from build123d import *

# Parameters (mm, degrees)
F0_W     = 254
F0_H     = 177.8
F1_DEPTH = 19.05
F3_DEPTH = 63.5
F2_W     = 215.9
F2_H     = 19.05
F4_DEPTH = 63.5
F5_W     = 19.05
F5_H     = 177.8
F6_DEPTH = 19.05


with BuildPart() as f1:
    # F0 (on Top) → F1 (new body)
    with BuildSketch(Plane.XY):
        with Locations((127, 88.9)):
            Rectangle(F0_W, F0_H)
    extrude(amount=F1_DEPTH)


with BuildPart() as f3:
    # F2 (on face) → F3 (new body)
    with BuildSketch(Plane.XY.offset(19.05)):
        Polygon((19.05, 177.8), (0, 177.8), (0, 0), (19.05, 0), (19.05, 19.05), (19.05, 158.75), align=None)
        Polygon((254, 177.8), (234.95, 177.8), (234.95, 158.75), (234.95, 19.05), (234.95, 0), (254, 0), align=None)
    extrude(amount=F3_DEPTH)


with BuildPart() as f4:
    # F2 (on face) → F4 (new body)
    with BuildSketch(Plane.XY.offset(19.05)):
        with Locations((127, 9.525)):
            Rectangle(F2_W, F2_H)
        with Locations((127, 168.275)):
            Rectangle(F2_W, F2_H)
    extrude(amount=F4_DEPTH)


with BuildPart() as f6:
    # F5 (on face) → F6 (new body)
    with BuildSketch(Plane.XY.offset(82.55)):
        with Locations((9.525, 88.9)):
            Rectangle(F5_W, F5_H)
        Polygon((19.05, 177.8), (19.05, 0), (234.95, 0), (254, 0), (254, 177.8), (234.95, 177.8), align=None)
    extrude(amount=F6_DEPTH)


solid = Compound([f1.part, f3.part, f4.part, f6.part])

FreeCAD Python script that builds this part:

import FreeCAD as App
import Part
import Sketcher
from FreeCAD import Vector
Q = App.Units.Quantity

doc = App.newDocument("Part")
params = doc.addObject("Spreadsheet::Sheet", "Params")
for row, (alias, value) in enumerate([
    ("sketch1_width", "10 in"),
    ("sketch1_height", "7 in"),
    ("pad1_length", "0.75 in"),
    ("sketch2_height", "7 in"),
    ("sketch2_width", "0.75 in"),
    ("pad2_length", "2.5 in"),
    ("sketch3_width", "8.5 in"),
    ("sketch3_height", "0.75 in"),
    ("pad3_length", "2.5 in"),
    ("sketch4_width", "10 in"),
    ("sketch4_height", "7 in"),
    ("pad4_length", "0.75 in"),
], start=1):
    params.set(f"A{row}", alias)
    params.set(f"B{row}", "=" + value)
    params.setAlias(f"B{row}", alias)

body = doc.addObject("PartDesign::Body", "Body")

# Sketch on XY plane
sketch1 = body.newObject("Sketcher::SketchObject", "Sketch")
sketch1.AttachmentSupport = (doc.getObject("XY_Plane"), [""])
sketch1.MapMode = "FlatFace"
sketch1.addGeometry([
    Part.LineSegment(Vector(0, 177.8, 0), Vector(0, 0, 0)),
    Part.LineSegment(Vector(0, 0, 0), Vector(254, 0, 0)),
    Part.LineSegment(Vector(254, 0, 0), Vector(254, 177.8, 0)),
    Part.LineSegment(Vector(254, 177.8, 0), Vector(0, 177.8, 0)),
], False)
sketch1.addConstraint([
    Sketcher.Constraint("Coincident", 0, 2, 1, 1),
    Sketcher.Constraint("Coincident", 1, 2, 2, 1),
    Sketcher.Constraint("Coincident", 2, 2, 3, 1),
    Sketcher.Constraint("Coincident", 3, 2, 0, 1),
    Sketcher.Constraint("Vertical", 0),
    Sketcher.Constraint("Horizontal", 1),
    Sketcher.Constraint("Vertical", 2),
    Sketcher.Constraint("Horizontal", 3),
    Sketcher.Constraint("Coincident", 0, 2, -1, 1),
    Sketcher.Constraint("DistanceX", 1, 1, 1, 2, Q("10 in")),
    Sketcher.Constraint("DistanceY", 0, 2, 0, 1, Q("7 in")),
])
sketch1.setExpression("Constraints[9]", "Params.sketch1_width")
sketch1.setExpression("Constraints[10]", "Params.sketch1_height")
pad1 = body.newObject("PartDesign::Pad", "Pad")
pad1.Profile = sketch1
pad1.setExpression("Length", "Params.pad1_length")
body2 = doc.addObject("PartDesign::Body", "Body001")
body2.AllowCompound = True

# Sketch on XY plane
sketch2 = body2.newObject("Sketcher::SketchObject", "Sketch001")
sketch2.AttachmentSupport = (doc.getObject("XY_Plane001"), [""])
sketch2.MapMode = "FlatFace"
sketch2.AttachmentOffset = App.Placement(Vector(0, 0, 0.75 * 25.4), App.Rotation())
sketch2.addGeometry([
    Part.LineSegment(Vector(19.05, 177.8, 0), Vector(0, 177.8, 0)),  # 0
    Part.LineSegment(Vector(0, 177.8, 0), Vector(0, 0, 0)),  # 1
    Part.LineSegment(Vector(0, 0, 0), Vector(19.05, 0, 0)),  # 2
    Part.LineSegment(Vector(19.05, 0, 0), Vector(19.05, 177.8, 0)),  # 3
    Part.LineSegment(Vector(254, 177.8, 0), Vector(234.95, 177.8, 0)),  # 4
    Part.LineSegment(Vector(234.95, 177.8, 0), Vector(234.95, 0, 0)),  # 5
    Part.LineSegment(Vector(234.95, 0, 0), Vector(254, 0, 0)),  # 6
    Part.LineSegment(Vector(254, 0, 0), Vector(254, 177.8, 0)),  # 7
], False)
sketch2.addConstraint([
    Sketcher.Constraint("Coincident", 0, 2, 1, 1),
    Sketcher.Constraint("Coincident", 1, 2, 2, 1),
    Sketcher.Constraint("Coincident", 2, 2, 3, 1),
    Sketcher.Constraint("Coincident", 3, 2, 0, 1),
    Sketcher.Constraint("Coincident", 4, 2, 5, 1),
    Sketcher.Constraint("Coincident", 5, 2, 6, 1),
    Sketcher.Constraint("Coincident", 6, 2, 7, 1),
    Sketcher.Constraint("Coincident", 7, 2, 4, 1),
    Sketcher.Constraint("Horizontal", 0),
    Sketcher.Constraint("Vertical", 1),
    Sketcher.Constraint("Horizontal", 2),
    Sketcher.Constraint("Vertical", 3),
    Sketcher.Constraint("Horizontal", 4),
    Sketcher.Constraint("Vertical", 5),
    Sketcher.Constraint("Horizontal", 6),
    Sketcher.Constraint("Vertical", 7),
    Sketcher.Constraint("Coincident", 1, 2, -1, 1),
    Sketcher.Constraint("PointOnObject", 5, 2, -1),
    Sketcher.Constraint("Horizontal", 3, 2, 4, 2),
    Sketcher.Constraint("Equal", 2, 4),
    Sketcher.Constraint("DistanceY", 1, 2, 1, 1, Q("7 in")),
    Sketcher.Constraint("DistanceX", -1, 1, 6, 2, Q("10 in")),
    Sketcher.Constraint("DistanceX", 0, 2, 0, 1, Q("0.75 in")),
])
sketch2.setExpression("Constraints[20]", "Params.sketch2_height")
sketch2.setExpression("Constraints[22]", "Params.sketch2_width")
pad2 = body2.newObject("PartDesign::Pad", "Pad001")
pad2.Profile = sketch2
pad2.setExpression("Length", "Params.pad2_length")
body3 = doc.addObject("PartDesign::Body", "Body002")
body3.AllowCompound = True

# Sketch on XY plane
sketch3 = body3.newObject("Sketcher::SketchObject", "Sketch002")
sketch3.AttachmentSupport = (doc.getObject("XY_Plane002"), [""])
sketch3.MapMode = "FlatFace"
sketch3.AttachmentOffset = App.Placement(Vector(0, 0, 0.75 * 25.4), App.Rotation())
sketch3.addGeometry([
    Part.LineSegment(Vector(19.05, 19.05, 0), Vector(19.05, 0, 0)),  # 0
    Part.LineSegment(Vector(19.05, 0, 0), Vector(234.95, 0, 0)),  # 1
    Part.LineSegment(Vector(234.95, 0, 0), Vector(234.95, 19.05, 0)),  # 2
    Part.LineSegment(Vector(234.95, 19.05, 0), Vector(19.05, 19.05, 0)),  # 3
    Part.LineSegment(Vector(19.05, 177.8, 0), Vector(19.05, 158.75, 0)),  # 4
    Part.LineSegment(Vector(19.05, 158.75, 0), Vector(234.95, 158.75, 0)),  # 5
    Part.LineSegment(Vector(234.95, 158.75, 0), Vector(234.95, 177.8, 0)),  # 6
    Part.LineSegment(Vector(234.95, 177.8, 0), Vector(19.05, 177.8, 0)),  # 7
], False)
sketch3.addConstraint([
    Sketcher.Constraint("Coincident", 0, 2, 1, 1),
    Sketcher.Constraint("Coincident", 1, 2, 2, 1),
    Sketcher.Constraint("Coincident", 2, 2, 3, 1),
    Sketcher.Constraint("Coincident", 3, 2, 0, 1),
    Sketcher.Constraint("Coincident", 4, 2, 5, 1),
    Sketcher.Constraint("Coincident", 5, 2, 6, 1),
    Sketcher.Constraint("Coincident", 6, 2, 7, 1),
    Sketcher.Constraint("Coincident", 7, 2, 4, 1),
    Sketcher.Constraint("Vertical", 0),
    Sketcher.Constraint("Horizontal", 1),
    Sketcher.Constraint("Vertical", 2),
    Sketcher.Constraint("Horizontal", 3),
    Sketcher.Constraint("Vertical", 4),
    Sketcher.Constraint("Horizontal", 5),
    Sketcher.Constraint("Vertical", 6),
    Sketcher.Constraint("Horizontal", 7),
    Sketcher.Constraint("PointOnObject", 0, 2, -1),
    Sketcher.Constraint("Vertical", 3, 2, 4, 2),
    Sketcher.Constraint("Vertical", 2, 2, 5, 2),
    Sketcher.Constraint("Equal", 2, 4),
    Sketcher.Constraint("DistanceX", 1, 1, 1, 2, Q("8.5 in")),
    Sketcher.Constraint("DistanceY", -1, 1, 6, 2, Q("7 in")),
    Sketcher.Constraint("DistanceY", 0, 2, 0, 1, Q("0.75 in")),
    Sketcher.Constraint("DistanceX", -1, 1, 0, 2, Q("0.75 in")),
])
sketch3.setExpression("Constraints[20]", "Params.sketch3_width")
sketch3.setExpression("Constraints[22]", "Params.sketch3_height")
pad3 = body3.newObject("PartDesign::Pad", "Pad002")
pad3.Profile = sketch3
pad3.setExpression("Length", "Params.pad3_length")
body4 = doc.addObject("PartDesign::Body", "Body003")

# Sketch on XY plane
sketch4 = body4.newObject("Sketcher::SketchObject", "Sketch003")
sketch4.AttachmentSupport = (doc.getObject("XY_Plane003"), [""])
sketch4.MapMode = "FlatFace"
sketch4.AttachmentOffset = App.Placement(Vector(0, 0, 3.25 * 25.4), App.Rotation())
sketch4.addGeometry([
    Part.LineSegment(Vector(0, 177.8, 0), Vector(0, 0, 0)),
    Part.LineSegment(Vector(0, 0, 0), Vector(254, 0, 0)),
    Part.LineSegment(Vector(254, 0, 0), Vector(254, 177.8, 0)),
    Part.LineSegment(Vector(254, 177.8, 0), Vector(0, 177.8, 0)),
], False)
sketch4.addConstraint([
    Sketcher.Constraint("Coincident", 0, 2, 1, 1),
    Sketcher.Constraint("Coincident", 1, 2, 2, 1),
    Sketcher.Constraint("Coincident", 2, 2, 3, 1),
    Sketcher.Constraint("Coincident", 3, 2, 0, 1),
    Sketcher.Constraint("Vertical", 0),
    Sketcher.Constraint("Horizontal", 1),
    Sketcher.Constraint("Vertical", 2),
    Sketcher.Constraint("Horizontal", 3),
    Sketcher.Constraint("Coincident", 0, 2, -1, 1),
    Sketcher.Constraint("DistanceX", 1, 1, 1, 2, Q("10 in")),
    Sketcher.Constraint("DistanceY", 0, 2, 0, 1, Q("7 in")),
])
sketch4.setExpression("Constraints[9]", "Params.sketch4_width")
sketch4.setExpression("Constraints[10]", "Params.sketch4_height")
pad4 = body4.newObject("PartDesign::Pad", "Pad003")
pad4.Profile = sketch4
pad4.setExpression("Length", "Params.pad4_length")

doc.recompute()
